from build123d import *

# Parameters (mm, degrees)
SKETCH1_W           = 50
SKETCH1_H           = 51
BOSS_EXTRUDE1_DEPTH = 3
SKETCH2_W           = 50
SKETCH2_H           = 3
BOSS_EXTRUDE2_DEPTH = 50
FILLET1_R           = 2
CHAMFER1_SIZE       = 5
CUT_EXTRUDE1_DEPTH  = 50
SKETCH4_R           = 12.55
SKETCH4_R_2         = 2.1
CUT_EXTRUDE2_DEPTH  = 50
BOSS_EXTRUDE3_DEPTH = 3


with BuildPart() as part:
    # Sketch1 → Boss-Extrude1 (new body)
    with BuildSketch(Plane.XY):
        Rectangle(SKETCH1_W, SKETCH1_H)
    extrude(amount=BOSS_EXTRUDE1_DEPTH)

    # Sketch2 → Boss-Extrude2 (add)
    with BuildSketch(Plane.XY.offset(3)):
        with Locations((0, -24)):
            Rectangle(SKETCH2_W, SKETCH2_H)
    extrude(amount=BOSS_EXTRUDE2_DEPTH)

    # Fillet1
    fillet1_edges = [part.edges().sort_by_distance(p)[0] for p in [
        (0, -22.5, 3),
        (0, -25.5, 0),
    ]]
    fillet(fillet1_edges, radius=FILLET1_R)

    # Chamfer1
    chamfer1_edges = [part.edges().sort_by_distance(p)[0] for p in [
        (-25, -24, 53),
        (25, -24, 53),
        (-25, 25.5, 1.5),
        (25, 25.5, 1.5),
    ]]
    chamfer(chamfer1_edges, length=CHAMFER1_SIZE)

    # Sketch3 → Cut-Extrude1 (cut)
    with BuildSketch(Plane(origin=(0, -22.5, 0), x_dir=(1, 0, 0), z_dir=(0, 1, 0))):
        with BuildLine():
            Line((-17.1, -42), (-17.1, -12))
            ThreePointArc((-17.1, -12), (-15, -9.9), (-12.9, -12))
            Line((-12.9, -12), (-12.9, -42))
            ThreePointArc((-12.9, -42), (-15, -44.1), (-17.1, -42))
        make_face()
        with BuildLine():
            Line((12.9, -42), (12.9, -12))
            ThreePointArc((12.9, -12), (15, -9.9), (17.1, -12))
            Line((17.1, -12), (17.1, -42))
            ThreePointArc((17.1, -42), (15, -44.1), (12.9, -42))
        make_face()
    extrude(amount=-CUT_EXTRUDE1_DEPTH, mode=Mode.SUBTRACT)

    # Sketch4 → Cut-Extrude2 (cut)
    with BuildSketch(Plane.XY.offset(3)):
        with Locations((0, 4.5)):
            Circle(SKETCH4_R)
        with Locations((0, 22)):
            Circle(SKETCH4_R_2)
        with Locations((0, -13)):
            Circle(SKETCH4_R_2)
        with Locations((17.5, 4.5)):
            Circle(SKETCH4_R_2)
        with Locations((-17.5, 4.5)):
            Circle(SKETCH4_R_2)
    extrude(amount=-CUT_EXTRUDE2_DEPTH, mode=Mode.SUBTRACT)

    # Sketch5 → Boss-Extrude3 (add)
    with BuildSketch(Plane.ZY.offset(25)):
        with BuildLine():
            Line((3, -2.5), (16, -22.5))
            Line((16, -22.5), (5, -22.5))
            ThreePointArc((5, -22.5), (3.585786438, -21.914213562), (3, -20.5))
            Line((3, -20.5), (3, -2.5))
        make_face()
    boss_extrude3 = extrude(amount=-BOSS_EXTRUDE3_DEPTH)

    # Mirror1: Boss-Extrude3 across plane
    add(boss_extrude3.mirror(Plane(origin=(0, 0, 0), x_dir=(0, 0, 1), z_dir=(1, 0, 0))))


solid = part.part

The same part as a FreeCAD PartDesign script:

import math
import FreeCAD as App
import Part
import Sketcher


def edges_at(feature, points):
    """Names of the edges that pass closest to the given points."""
    edges = feature.Shape.Edges
    near = lambda p: min(range(len(edges)), key=lambda i: edges[i].distToShape(Part.Vertex(*p))[0])
    return sorted({f"Edge{near(p) + 1}" for p in points})


def add_polygon(sketch, points):
    """Adds a closed chain of lines whose ends are joined by coincident constraints."""
    first, n = sketch.GeometryCount, len(points)
    for a, b in zip(points, points[1:] + points[:1]):
        sketch.addGeometry(Part.LineSegment(App.Vector(*a, 0), App.Vector(*b, 0)), False)
    for i in range(n):
        sketch.addConstraint(Sketcher.Constraint("Coincident", first + i, 2, first + (i + 1) % n, 1))

doc = App.newDocument("Part")
body = doc.addObject("PartDesign::Body", "Body")

sketch1 = body.newObject("Sketcher::SketchObject", "Sketch")
sketch1.AttachmentSupport = (doc.getObject("XY_Plane"), [""])
sketch1.MapMode = "FlatFace"
add_polygon(sketch1, [(-25, 25.5), (-25, -25.5), (25, -25.5), (25, 25.5)])
sketch1.addConstraint(Sketcher.Constraint("Vertical", 0))
sketch1.addConstraint(Sketcher.Constraint("Horizontal", 1))
sketch1.addConstraint(Sketcher.Constraint("Vertical", 2))
sketch1.addConstraint(Sketcher.Constraint("Horizontal", 3))
sketch1.addConstraint(Sketcher.Constraint("Symmetric", 0, 2, 2, 2, -1, 1))
sketch1.addConstraint(Sketcher.Constraint("DistanceX", 1, 1, 1, 2, 50.0))
sketch1.addConstraint(Sketcher.Constraint("DistanceY", 0, 2, 0, 1, 51.0))
pad1 = body.newObject("PartDesign::Pad", "Pad")
pad1.Profile = sketch1
pad1.Length = 3

sketch2 = body.newObject("Sketcher::SketchObject", "Sketch001")
sketch2.AttachmentSupport = (doc.getObject("XY_Plane"), [""])
sketch2.MapMode = "FlatFace"
sketch2.AttachmentOffset = App.Placement(App.Vector(0, 0, 3), App.Rotation())
add_polygon(sketch2, [(-25, -22.5), (-25, -25.5), (25, -25.5), (25, -22.5)])
sketch2.addConstraint(Sketcher.Constraint("Vertical", 0))
sketch2.addConstraint(Sketcher.Constraint("Horizontal", 1))
sketch2.addConstraint(Sketcher.Constraint("Vertical", 2))
sketch2.addConstraint(Sketcher.Constraint("Horizontal", 3))
sketch2.addConstraint(Sketcher.Constraint("DistanceX", 1, 1, 1, 2, 50.0))
sketch2.addConstraint(Sketcher.Constraint("DistanceY", 0, 2, 0, 1, 3.0))
sketch2.addConstraint(Sketcher.Constraint("DistanceX", 0, 2, -1, 1, 25.0))
sketch2.addConstraint(Sketcher.Constraint("DistanceY", 0, 2, -1, 1, 25.5))
pad2 = body.newObject("PartDesign::Pad", "Pad001")
pad2.Profile = sketch2
pad2.Length = 50
doc.recompute()

fillet = body.newObject("PartDesign::Fillet", "Fillet")
fillet.Base = (pad2, edges_at(pad2, [(0, -22.5, 3), (0, -25.5, 0)]))
fillet.Radius = 2
doc.recompute()

chamfer = body.newObject("PartDesign::Chamfer", "Chamfer")
chamfer.Base = (fillet, edges_at(fillet, [
    (-25, -24, 53),
    (25, -24, 53),
    (-25, 25.5, 1.5),
    (25, 25.5, 1.5),
]))
chamfer.Size = 5

sketch3 = body.newObject("Sketcher::SketchObject", "Sketch002")
sketch3.AttachmentSupport = (doc.getObject("XZ_Plane"), [""])
sketch3.MapMode = "FlatFace"
sketch3.AttachmentOffset = App.Placement(App.Vector(0, 0, 22.5), App.Rotation())
sketch3.addGeometry(Part.LineSegment(App.Vector(-17.1, 12, 0), App.Vector(-17.1, 42, 0)), False)
sketch3.addGeometry(Part.ArcOfCircle(Part.Circle(App.Vector(-15, 42, 0), App.Vector(0, 0, 1), 2.1), math.radians(0), math.radians(180)), False)
sketch3.addGeometry(Part.LineSegment(App.Vector(-12.9, 42, 0), App.Vector(-12.9, 12, 0)), False)
sketch3.addGeometry(Part.ArcOfCircle(Part.Circle(App.Vector(-15, 12, 0), App.Vector(0, 0, 1), 2.1), math.radians(180), math.radians(360)), False)
sketch3.addGeometry(Part.LineSegment(App.Vector(12.9, 12, 0), App.Vector(12.9, 42, 0)), False)
sketch3.addGeometry(Part.ArcOfCircle(Part.Circle(App.Vector(15, 42, 0), App.Vector(0, 0, 1), 2.1), math.radians(0), math.radians(180)), False)
sketch3.addGeometry(Part.LineSegment(App.Vector(17.1, 42, 0), App.Vector(17.1, 12, 0)), False)
sketch3.addGeometry(Part.ArcOfCircle(Part.Circle(App.Vector(15, 12, 0), App.Vector(0, 0, 1), 2.1), math.radians(180), math.radians(360)), False)
sketch3.addConstraint(Sketcher.Constraint("Tangent", 0, 2, 1, 2))
sketch3.addConstraint(Sketcher.Constraint("Tangent", 1, 1, 2, 1))
sketch3.addConstraint(Sketcher.Constraint("Tangent", 2, 2, 3, 2))
sketch3.addConstraint(Sketcher.Constraint("Tangent", 3, 1, 0, 1))
sketch3.addConstraint(Sketcher.Constraint("Tangent", 4, 2, 5, 2))
sketch3.addConstraint(Sketcher.Constraint("Tangent", 5, 1, 6, 1))
sketch3.addConstraint(Sketcher.Constraint("Tangent", 6, 2, 7, 2))
sketch3.addConstraint(Sketcher.Constraint("Tangent", 7, 1, 4, 1))
sketch3.addConstraint(Sketcher.Constraint("Vertical", 0))
sketch3.addConstraint(Sketcher.Constraint("Vertical", 2))
sketch3.addConstraint(Sketcher.Constraint("Vertical", 4))
sketch3.addConstraint(Sketcher.Constraint("Vertical", 6))
sketch3.addConstraint(Sketcher.Constraint("Equal", 3, 5))
sketch3.addConstraint(Sketcher.Constraint("Symmetric", 1, 3, 5, 3, -2))
sketch3.addConstraint(Sketcher.Constraint("Horizontal", 3, 3, 7, 3))
sketch3.addConstraint(Sketcher.Constraint("Radius", 1, 2.1))
sketch3.addConstraint(Sketcher.Constraint("DistanceY", 0, 1, 0, 2, 30.0))
sketch3.addConstraint(Sketcher.Constraint("DistanceX", 1, 3, -1, 1, 15.0))
sketch3.addConstraint(Sketcher.Constraint("DistanceY", -1, 1, 1, 3, 42.0))
pocket1 = body.newObject("PartDesign::Pocket", "Pocket")
pocket1.Profile = sketch3
pocket1.Length = 50
pocket1.Reversed = True

sketch4 = body.newObject("Sketcher::SketchObject", "Sketch003")
sketch4.AttachmentSupport = (doc.getObject("XY_Plane"), [""])
sketch4.MapMode = "FlatFace"
sketch4.AttachmentOffset = App.Placement(App.Vector(0, 0, 3), App.Rotation())
sketch4.addGeometry(Part.Circle(App.Vector(0, 4.5, 0), App.Vector(0, 0, 1), 12.55), False)
sketch4.addGeometry(Part.Circle(App.Vector(0, 22, 0), App.Vector(0, 0, 1), 2.1), False)
sketch4.addGeometry(Part.Circle(App.Vector(0, -13, 0), App.Vector(0, 0, 1), 2.1), False)
sketch4.addGeometry(Part.Circle(App.Vector(17.5, 4.5, 0), App.Vector(0, 0, 1), 2.1), False)
sketch4.addGeometry(Part.Circle(App.Vector(-17.5, 4.5, 0), App.Vector(0, 0, 1), 2.1), False)
sketch4.addConstraint(Sketcher.Constraint("Equal", 1, 2))
sketch4.addConstraint(Sketcher.Constraint("Equal", 2, 3))
sketch4.addConstraint(Sketcher.Constraint("Equal", 3, 4))
sketch4.addConstraint(Sketcher.Constraint("Symmetric", 3, 3, 4, 3, -2))
sketch4.addConstraint(Sketcher.Constraint("PointOnObject", 0, 3, -2))
sketch4.addConstraint(Sketcher.Constraint("PointOnObject", 1, 3, -2))
sketch4.addConstraint(Sketcher.Constraint("PointOnObject", 2, 3, -2))
sketch4.addConstraint(Sketcher.Constraint("Horizontal", 0, 3, 3, 3))
sketch4.addConstraint(Sketcher.Constraint("Diameter", 0, 25.1))
sketch4.addConstraint(Sketcher.Constraint("Diameter", 1, 4.2))
sketch4.addConstraint(Sketcher.Constraint("DistanceY", -1, 1, 1, 3, 22.0))
sketch4.addConstraint(Sketcher.Constraint("DistanceY", 2, 3, -1, 1, 13.0))
sketch4.addConstraint(Sketcher.Constraint("DistanceX", 4, 3, 3, 3, 35.0))
sketch4.addConstraint(Sketcher.Constraint("DistanceY", -1, 1, 0, 3, 4.5))
pocket2 = body.newObject("PartDesign::Pocket", "Pocket001")
pocket2.Profile = sketch4
pocket2.Length = 50

sketch5 = body.newObject("Sketcher::SketchObject", "Sketch004")
sketch5.AttachmentSupport = (doc.getObject("YZ_Plane"), [""])
sketch5.MapMode = "FlatFace"
sketch5.AttachmentOffset = App.Placement(App.Vector(0, 0, -25), App.Rotation())
sketch5.addGeometry(Part.LineSegment(App.Vector(-22.5, 16, 0), App.Vector(-2.5, 3, 0)), False)
sketch5.addGeometry(Part.LineSegment(App.Vector(-2.5, 3, 0), App.Vector(-20.5, 3, 0)), False)
sketch5.addGeometry(Part.ArcOfCircle(Part.Circle(App.Vector(-20.5, 5, 0), App.Vector(0, 0, 1), 2), math.radians(-180), math.radians(-90)), False)
sketch5.addGeometry(Part.LineSegment(App.Vector(-22.5, 5, 0), App.Vector(-22.5, 16, 0)), False)
sketch5.addConstraint(Sketcher.Constraint("Coincident", 0, 2, 1, 1))
sketch5.addConstraint(Sketcher.Constraint("Tangent", 1, 2, 2, 2))
sketch5.addConstraint(Sketcher.Constraint("Tangent", 2, 1, 3, 1))
sketch5.addConstraint(Sketcher.Constraint("Coincident", 3, 2, 0, 1))
sketch5.addConstraint(Sketcher.Constraint("Horizontal", 1))
sketch5.addConstraint(Sketcher.Constraint("Vertical", 3))
sketch5.addConstraint(Sketcher.Constraint("Radius", 2, 2.0))
sketch5.addConstraint(Sketcher.Constraint("DistanceX", 1, 2, 1, 1, 18.0))
sketch5.addConstraint(Sketcher.Constraint("DistanceY", 3, 1, 3, 2, 11.0))
sketch5.addConstraint(Sketcher.Constraint("DistanceY", -1, 1, 2, 3, 5.0))
sketch5.addConstraint(Sketcher.Constraint("DistanceX", 2, 3, -1, 1, 20.5))
pad3 = body.newObject("PartDesign::Pad", "Pad002")
pad3.Profile = sketch5
pad3.Length = 3
doc.recompute()

mirrored = body.newObject("PartDesign::Mirrored", "Mirrored")
mirrored.Originals = [pad3]
mirrored.MirrorPlane = (doc.getObject("YZ_Plane"), [""])
body.Tip = mirrored

doc.recompute()
